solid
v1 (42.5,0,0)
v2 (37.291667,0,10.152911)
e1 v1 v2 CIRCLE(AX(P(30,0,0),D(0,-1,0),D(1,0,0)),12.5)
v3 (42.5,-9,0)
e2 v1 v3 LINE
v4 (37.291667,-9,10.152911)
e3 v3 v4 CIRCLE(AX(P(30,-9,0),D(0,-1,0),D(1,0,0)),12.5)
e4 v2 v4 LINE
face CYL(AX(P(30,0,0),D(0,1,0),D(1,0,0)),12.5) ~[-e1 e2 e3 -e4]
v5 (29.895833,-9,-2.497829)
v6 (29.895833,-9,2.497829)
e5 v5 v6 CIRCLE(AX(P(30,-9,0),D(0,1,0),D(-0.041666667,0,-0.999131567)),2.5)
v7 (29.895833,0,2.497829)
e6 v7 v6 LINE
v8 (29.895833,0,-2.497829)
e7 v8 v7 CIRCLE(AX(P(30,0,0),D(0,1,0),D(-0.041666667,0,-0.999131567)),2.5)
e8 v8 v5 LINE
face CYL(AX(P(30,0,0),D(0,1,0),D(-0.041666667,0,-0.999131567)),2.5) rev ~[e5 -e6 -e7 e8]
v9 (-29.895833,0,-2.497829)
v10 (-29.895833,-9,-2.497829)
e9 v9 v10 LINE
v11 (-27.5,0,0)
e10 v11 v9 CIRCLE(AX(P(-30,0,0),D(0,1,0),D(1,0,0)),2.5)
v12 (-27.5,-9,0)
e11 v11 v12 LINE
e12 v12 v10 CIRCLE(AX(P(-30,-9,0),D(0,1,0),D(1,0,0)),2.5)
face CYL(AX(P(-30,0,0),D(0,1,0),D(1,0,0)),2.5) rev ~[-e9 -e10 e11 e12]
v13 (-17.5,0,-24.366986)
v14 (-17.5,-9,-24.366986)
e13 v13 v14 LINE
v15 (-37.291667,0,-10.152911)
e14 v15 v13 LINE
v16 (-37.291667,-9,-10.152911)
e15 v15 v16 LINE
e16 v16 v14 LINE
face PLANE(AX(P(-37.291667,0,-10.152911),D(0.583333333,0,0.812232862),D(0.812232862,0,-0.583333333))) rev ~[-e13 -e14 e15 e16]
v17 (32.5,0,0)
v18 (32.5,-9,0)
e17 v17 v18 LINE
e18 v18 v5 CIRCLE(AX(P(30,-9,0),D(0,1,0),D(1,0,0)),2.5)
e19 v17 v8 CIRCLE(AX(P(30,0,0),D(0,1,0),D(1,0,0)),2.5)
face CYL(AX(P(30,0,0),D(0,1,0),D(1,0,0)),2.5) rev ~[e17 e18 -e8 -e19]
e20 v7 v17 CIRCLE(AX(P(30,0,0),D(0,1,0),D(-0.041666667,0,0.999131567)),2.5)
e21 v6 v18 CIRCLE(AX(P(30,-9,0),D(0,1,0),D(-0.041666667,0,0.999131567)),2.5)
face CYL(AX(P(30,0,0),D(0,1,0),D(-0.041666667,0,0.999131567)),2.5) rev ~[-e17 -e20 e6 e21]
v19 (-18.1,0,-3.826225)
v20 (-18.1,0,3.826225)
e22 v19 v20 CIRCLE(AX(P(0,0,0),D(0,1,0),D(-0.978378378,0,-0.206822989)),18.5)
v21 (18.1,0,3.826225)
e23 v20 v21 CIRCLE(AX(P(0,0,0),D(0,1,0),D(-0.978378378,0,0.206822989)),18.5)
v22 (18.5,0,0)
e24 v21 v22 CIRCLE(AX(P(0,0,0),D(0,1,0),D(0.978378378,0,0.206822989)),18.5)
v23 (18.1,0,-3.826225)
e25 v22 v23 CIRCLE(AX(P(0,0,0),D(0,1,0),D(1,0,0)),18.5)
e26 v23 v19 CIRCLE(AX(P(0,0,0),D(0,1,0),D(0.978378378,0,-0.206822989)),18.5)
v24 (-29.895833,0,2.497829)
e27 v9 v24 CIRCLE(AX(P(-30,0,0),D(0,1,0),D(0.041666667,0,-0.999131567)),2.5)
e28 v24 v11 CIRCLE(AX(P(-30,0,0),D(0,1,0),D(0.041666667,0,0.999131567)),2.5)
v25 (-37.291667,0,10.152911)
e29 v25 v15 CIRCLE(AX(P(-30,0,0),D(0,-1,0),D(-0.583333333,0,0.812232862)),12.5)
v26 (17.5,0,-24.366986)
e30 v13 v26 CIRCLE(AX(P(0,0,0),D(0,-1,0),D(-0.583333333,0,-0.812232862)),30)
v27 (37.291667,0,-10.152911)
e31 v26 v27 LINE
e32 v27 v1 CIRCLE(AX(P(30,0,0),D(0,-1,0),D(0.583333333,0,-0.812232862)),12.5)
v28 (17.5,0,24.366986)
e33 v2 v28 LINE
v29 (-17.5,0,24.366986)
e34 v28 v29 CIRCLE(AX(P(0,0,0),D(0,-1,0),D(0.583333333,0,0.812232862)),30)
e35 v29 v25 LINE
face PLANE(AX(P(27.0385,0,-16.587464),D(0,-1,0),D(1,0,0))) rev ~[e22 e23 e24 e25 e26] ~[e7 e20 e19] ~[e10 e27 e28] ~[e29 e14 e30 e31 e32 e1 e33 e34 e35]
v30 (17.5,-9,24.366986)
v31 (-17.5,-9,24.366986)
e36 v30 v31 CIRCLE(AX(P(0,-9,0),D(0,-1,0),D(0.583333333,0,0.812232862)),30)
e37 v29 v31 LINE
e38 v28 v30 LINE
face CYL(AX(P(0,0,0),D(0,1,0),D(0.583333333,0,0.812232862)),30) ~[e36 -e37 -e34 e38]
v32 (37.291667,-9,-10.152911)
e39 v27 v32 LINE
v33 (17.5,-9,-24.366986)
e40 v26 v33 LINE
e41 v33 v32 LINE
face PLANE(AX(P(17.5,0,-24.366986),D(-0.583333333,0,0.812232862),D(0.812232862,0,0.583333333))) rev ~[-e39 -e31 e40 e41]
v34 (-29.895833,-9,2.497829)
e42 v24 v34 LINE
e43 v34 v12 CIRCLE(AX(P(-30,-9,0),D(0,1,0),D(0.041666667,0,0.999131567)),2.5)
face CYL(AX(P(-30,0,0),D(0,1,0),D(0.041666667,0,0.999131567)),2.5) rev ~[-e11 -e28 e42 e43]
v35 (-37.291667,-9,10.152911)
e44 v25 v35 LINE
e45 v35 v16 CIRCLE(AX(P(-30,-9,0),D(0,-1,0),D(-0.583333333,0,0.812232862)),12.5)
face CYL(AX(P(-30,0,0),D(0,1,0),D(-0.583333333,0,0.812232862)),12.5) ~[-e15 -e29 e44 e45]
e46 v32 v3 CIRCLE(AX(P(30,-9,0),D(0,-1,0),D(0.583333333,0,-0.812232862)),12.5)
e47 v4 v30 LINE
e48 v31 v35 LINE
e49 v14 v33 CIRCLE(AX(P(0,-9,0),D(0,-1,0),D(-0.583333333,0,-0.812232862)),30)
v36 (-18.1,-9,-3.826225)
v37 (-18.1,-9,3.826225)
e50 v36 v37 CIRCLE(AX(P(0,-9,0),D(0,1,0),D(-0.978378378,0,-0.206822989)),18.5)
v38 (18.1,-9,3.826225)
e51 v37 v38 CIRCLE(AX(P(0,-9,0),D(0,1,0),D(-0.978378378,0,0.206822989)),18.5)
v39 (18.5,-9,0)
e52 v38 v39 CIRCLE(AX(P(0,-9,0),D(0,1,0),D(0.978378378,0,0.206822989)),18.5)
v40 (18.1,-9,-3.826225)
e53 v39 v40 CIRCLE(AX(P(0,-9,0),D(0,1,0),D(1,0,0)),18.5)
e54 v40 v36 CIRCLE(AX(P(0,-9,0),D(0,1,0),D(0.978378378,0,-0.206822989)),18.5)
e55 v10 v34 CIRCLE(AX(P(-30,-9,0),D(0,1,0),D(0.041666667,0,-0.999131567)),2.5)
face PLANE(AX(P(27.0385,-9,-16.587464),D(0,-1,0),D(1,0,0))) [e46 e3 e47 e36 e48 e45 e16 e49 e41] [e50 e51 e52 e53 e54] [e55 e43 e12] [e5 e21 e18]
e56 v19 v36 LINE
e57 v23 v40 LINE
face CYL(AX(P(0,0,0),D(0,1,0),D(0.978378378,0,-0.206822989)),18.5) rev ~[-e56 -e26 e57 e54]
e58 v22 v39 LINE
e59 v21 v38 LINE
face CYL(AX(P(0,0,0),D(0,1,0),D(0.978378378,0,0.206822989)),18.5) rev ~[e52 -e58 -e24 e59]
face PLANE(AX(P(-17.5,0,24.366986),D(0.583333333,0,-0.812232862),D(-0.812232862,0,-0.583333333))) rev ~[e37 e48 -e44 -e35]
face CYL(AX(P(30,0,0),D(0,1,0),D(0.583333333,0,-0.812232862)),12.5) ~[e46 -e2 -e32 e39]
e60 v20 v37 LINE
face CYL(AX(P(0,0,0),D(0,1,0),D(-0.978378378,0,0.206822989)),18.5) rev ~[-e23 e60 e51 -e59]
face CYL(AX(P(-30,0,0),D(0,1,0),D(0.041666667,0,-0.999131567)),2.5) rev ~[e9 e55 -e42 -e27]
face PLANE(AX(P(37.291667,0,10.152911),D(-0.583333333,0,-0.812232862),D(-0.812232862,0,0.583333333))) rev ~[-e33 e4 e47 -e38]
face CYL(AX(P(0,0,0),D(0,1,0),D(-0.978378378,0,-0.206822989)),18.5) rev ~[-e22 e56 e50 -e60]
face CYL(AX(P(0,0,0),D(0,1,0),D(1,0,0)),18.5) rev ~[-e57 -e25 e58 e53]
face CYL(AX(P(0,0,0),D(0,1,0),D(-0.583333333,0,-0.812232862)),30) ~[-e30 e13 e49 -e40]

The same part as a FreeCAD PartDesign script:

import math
import FreeCAD as App
import Part
import Sketcher
from FreeCAD import Vector

doc = App.newDocument("Part")
body = doc.addObject("PartDesign::Body", "Body")

sketch1 = body.newObject("Sketcher::SketchObject", "Sketch")
sketch1.AttachmentSupport = (doc.getObject("XZ_Plane"), [""])
sketch1.MapMode = "FlatFace"
sketch1.addGeometry([
    Part.LineSegment(Vector(-17.5, 24.4, 0), Vector(-37.3, 10.2, 0)),
    Part.ArcOfCircle(Part.Circle(Vector(-30, 0, 0), Vector(0, 0, 1), 12.5), math.radians(126), math.radians(234)),
    Part.LineSegment(Vector(-37.3, -10.2, 0), Vector(-17.5, -24.4, 0)),
    Part.ArcOfCircle(Part.Circle(Vector(0, 0, 0), Vector(0, 0, 1), 30), math.radians(-126), math.radians(-54)),
    Part.LineSegment(Vector(17.5, -24.4, 0), Vector(37.3, -10.2, 0)),
    Part.ArcOfCircle(Part.Circle(Vector(30, 0, 0), Vector(0, 0, 1), 12.5), math.radians(-54), math.radians(0)),
    Part.ArcOfCircle(Part.Circle(Vector(30, 0, 0), Vector(0, 0, 1), 12.5), math.radians(0), math.radians(54)),
    Part.LineSegment(Vector(37.3, 10.2, 0), Vector(17.5, 24.4, 0)),
    Part.ArcOfCircle(Part.Circle(Vector(0, 0, 0), Vector(0, 0, 1), 30), math.radians(54), math.radians(126)),
    Part.ArcOfCircle(Part.Circle(Vector(30, 0, 0), Vector(0, 0, 1), 2.5), math.radians(92), math.radians(268)),
    Part.ArcOfCircle(Part.Circle(Vector(30, 0, 0), Vector(0, 0, 1), 2.5), math.radians(0), math.radians(92)),
    Part.ArcOfCircle(Part.Circle(Vector(30, 0, 0), Vector(0, 0, 1), 2.5), math.radians(-92), math.radians(0)),
    Part.ArcOfCircle(Part.Circle(Vector(0, 0, 0), Vector(0, 0, 1), 18.5), math.radians(0), math.radians(11.94)),
    Part.ArcOfCircle(Part.Circle(Vector(0, 0, 0), Vector(0, 0, 1), 18.5), math.radians(-11.94), math.radians(0)),
    Part.ArcOfCircle(Part.Circle(Vector(0, 0, 0), Vector(0, 0, 1), 18.5), math.radians(-168), math.radians(-12)),
    Part.ArcOfCircle(Part.Circle(Vector(0, 0, 0), Vector(0, 0, 1), 18.5), math.radians(168), math.radians(192)),
    Part.ArcOfCircle(Part.Circle(Vector(0, 0, 0), Vector(0, 0, 1), 18.5), math.radians(12), math.radians(168)),
    Part.ArcOfCircle(Part.Circle(Vector(-30, 0, 0), Vector(0, 0, 1), 2.5), math.radians(88), math.radians(272)),
    Part.ArcOfCircle(Part.Circle(Vector(-30, 0, 0), Vector(0, 0, 1), 2.5), math.radians(0), math.radians(88)),
    Part.ArcOfCircle(Part.Circle(Vector(-30, 0, 0), Vector(0, 0, 1), 2.5), math.radians(-88), math.radians(0)),
], False)
sketch1.addConstraint([
    Sketcher.Constraint("Tangent", 0, 2, 1, 1),
    Sketcher.Constraint("Tangent", 1, 2, 2, 1),
    Sketcher.Constraint("Tangent", 2, 2, 3, 1),
    Sketcher.Constraint("Tangent", 3, 2, 4, 1),
    Sketcher.Constraint("Tangent", 4, 2, 5, 1),
    Sketcher.Constraint("Tangent", 5, 2, 6, 1),
    Sketcher.Constraint("Tangent", 6, 2, 7, 1),
    Sketcher.Constraint("Tangent", 7, 2, 8, 1),
    Sketcher.Constraint("Tangent", 8, 2, 0, 1),
    Sketcher.Constraint("Tangent", 9, 1, 10, 2),
    Sketcher.Constraint("Tangent", 10, 1, 11, 2),
    Sketcher.Constraint("Tangent", 11, 1, 9, 2),
    Sketcher.Constraint("Tangent", 12, 1, 13, 2),
    Sketcher.Constraint("Tangent", 13, 1, 14, 2),
    Sketcher.Constraint("Tangent", 14, 1, 15, 2),
    Sketcher.Constraint("Tangent", 15, 1, 16, 2),
    Sketcher.Constraint("Tangent", 16, 1, 12, 2),
    Sketcher.Constraint("Tangent", 17, 1, 18, 2),
    Sketcher.Constraint("Tangent", 18, 1, 19, 2),
    Sketcher.Constraint("Tangent", 19, 1, 17, 2),
    Sketcher.Constraint("Coincident", 3, 3, -1, 1),
    Sketcher.Constraint("Coincident", 8, 3, -1, 1),
    Sketcher.Constraint("Coincident", 12, 3, -1, 1),
    Sketcher.Constraint("Coincident", 14, 3, -1, 1),
    Sketcher.Constraint("Coincident", 9, 3, 5, 3),
    Sketcher.Constraint("Coincident", 17, 3, 1, 3),
    Sketcher.Constraint("Equal", 1, 5),
    Sketcher.Constraint("Equal", 5, 6),
    Sketcher.Constraint("Equal", 3, 8),
    Sketcher.Constraint("Equal", 11, 17),
    Sketcher.Constraint("Symmetric", 1, 3, 5, 3, -1, 1),
    Sketcher.Constraint("Symmetric", 9, 1, 17, 1, -2),
    Sketcher.Constraint("PointOnObject", 5, 2, -1),
    Sketcher.Constraint("PointOnObject", 10, 1, -1),
    Sketcher.Constraint("PointOnObject", 12, 1, -1),
    Sketcher.Constraint("PointOnObject", 18, 1, -1),
    Sketcher.Constraint("Horizontal", 13, 1, 14, 1),
    Sketcher.Constraint("Horizontal", 15, 1, 16, 1),
    Sketcher.Constraint("Horizontal", 11, 1, 19, 1),
    Sketcher.Constraint("Vertical", 9, 1, 11, 1),
    Sketcher.Constraint("Vertical", 14, 1, 15, 1),
    Sketcher.Constraint("Radius", 3, 30.0),
    Sketcher.Constraint("Radius", 1, 12.5),
    Sketcher.Constraint("Radius", 9, 2.5),
    Sketcher.Constraint("Radius", 12, 18.5),
    Sketcher.Constraint("DistanceX", 1, 3, -1, 1, 30.0),
    Sketcher.Constraint("DistanceX", -1, 1, 13, 1, 18.1),
    Sketcher.Constraint("DistanceY", -1, 1, 9, 1, 2.497829),
])
pad1 = body.newObject("PartDesign::Pad", "Pad")
pad1.Profile = sketch1
pad1.Length = 9

doc.recompute()
